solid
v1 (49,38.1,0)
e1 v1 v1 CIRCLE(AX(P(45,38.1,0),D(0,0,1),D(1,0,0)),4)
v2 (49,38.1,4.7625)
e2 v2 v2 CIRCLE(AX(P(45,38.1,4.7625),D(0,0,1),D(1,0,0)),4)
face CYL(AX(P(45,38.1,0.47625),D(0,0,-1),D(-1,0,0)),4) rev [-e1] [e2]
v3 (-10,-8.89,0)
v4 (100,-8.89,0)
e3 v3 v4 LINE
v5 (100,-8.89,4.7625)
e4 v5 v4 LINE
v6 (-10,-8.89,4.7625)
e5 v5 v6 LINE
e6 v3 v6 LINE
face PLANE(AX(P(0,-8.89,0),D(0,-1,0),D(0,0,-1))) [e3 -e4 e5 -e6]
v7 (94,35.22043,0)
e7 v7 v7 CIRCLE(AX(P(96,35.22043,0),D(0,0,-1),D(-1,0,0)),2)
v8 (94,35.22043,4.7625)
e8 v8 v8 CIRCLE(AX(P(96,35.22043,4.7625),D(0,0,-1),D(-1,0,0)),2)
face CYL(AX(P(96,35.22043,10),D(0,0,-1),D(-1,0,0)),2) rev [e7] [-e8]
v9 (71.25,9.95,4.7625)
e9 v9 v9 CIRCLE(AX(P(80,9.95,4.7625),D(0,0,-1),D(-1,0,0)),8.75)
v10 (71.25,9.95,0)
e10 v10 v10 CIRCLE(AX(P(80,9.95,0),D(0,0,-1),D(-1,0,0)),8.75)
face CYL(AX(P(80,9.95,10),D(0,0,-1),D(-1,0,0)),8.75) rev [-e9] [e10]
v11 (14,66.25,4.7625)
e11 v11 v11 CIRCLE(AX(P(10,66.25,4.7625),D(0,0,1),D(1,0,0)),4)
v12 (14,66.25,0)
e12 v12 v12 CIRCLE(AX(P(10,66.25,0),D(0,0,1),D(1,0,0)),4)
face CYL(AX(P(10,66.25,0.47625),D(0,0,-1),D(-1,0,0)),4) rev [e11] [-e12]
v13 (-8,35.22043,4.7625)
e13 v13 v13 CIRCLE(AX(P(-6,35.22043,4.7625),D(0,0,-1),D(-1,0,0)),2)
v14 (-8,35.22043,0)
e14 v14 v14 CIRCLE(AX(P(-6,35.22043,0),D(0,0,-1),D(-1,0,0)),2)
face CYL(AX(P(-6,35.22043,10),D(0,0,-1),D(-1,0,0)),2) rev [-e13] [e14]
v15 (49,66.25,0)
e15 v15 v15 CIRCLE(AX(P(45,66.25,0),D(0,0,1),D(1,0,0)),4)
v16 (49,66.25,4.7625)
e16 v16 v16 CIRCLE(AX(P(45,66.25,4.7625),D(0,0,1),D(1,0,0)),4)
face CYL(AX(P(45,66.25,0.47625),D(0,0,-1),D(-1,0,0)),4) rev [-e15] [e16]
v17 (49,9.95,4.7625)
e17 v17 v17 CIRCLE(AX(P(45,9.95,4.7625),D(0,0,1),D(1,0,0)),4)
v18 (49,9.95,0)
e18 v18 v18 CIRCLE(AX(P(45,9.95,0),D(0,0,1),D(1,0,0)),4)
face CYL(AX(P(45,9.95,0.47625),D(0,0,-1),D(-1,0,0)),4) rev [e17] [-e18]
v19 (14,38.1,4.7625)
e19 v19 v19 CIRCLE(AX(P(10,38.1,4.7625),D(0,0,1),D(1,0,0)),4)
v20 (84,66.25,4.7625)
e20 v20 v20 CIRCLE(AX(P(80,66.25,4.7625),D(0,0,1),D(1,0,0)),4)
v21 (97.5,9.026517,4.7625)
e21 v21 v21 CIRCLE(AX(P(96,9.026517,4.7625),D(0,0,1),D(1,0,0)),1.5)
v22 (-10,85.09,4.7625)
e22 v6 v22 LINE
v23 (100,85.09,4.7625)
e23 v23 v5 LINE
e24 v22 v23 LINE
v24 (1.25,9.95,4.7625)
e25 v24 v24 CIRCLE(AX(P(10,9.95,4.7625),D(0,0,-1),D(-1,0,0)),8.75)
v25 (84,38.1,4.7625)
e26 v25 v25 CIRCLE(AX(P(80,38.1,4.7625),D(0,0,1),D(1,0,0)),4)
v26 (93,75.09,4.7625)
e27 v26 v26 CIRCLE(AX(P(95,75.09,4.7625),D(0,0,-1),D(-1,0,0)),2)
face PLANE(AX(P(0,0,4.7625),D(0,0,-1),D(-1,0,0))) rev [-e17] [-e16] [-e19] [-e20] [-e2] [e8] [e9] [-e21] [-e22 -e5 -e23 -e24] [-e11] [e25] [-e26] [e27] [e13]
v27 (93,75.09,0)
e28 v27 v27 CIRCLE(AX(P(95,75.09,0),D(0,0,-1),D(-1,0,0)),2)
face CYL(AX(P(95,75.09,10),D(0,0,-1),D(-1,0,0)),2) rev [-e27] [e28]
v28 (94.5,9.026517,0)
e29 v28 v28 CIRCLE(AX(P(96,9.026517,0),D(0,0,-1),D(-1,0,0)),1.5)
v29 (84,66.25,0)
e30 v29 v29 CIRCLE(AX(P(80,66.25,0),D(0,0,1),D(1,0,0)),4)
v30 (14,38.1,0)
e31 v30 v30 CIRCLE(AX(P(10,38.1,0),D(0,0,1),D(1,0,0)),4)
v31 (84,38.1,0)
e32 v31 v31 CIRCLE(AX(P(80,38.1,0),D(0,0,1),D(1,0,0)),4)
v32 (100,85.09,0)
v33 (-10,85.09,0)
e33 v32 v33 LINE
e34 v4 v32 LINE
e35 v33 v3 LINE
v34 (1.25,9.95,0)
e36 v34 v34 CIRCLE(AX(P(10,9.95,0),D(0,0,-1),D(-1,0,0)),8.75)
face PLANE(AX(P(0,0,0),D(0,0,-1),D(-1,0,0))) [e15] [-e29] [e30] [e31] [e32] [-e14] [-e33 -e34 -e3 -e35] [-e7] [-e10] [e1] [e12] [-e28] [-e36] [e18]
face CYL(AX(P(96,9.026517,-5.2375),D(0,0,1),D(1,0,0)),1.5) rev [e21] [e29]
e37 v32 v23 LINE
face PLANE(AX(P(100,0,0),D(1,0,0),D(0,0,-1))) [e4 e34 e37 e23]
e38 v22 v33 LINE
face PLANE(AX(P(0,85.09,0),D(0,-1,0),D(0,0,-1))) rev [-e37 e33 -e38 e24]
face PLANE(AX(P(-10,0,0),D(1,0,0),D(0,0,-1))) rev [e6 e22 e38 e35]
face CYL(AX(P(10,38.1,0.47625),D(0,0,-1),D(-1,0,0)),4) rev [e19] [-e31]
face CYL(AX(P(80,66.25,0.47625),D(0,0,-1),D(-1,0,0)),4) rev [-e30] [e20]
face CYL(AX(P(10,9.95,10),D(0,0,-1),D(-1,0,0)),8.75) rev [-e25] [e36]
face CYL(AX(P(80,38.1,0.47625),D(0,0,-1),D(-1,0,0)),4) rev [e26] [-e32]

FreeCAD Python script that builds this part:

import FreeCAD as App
import Part
import Sketcher
Q = App.Units.Quantity


def add_polygon(sketch, points):
    """Adds a closed chain of lines whose ends are joined by coincident constraints."""
    first, n = sketch.GeometryCount, len(points)
    for a, b in zip(points, points[1:] + points[:1]):
        sketch.addGeometry(Part.LineSegment(App.Vector(*a, 0), App.Vector(*b, 0)), False)
    for i in range(n):
        sketch.addConstraint(Sketcher.Constraint("Coincident", first + i, 2, first + (i + 1) % n, 1))

doc = App.newDocument("Part")
body = doc.addObject("PartDesign::Body", "Body")

# Sketch on XY plane
sketch1 = body.newObject("Sketcher::SketchObject", "Sketch")
sketch1.AttachmentSupport = (doc.getObject("XY_Plane"), [""])
sketch1.MapMode = "FlatFace"
add_polygon(sketch1, [(0, 76.2), (0, 0), (90, 0), (90, 76.2)])  # lines 0-3
sketch1.addGeometry(Part.Circle(App.Vector(10, 9.9, 0), App.Vector(0, 0, 1), 4), False)  # 4
sketch1.addGeometry(Part.Circle(App.Vector(45, 9.9, 0), App.Vector(0, 0, 1), 4), False)  # 5
sketch1.addGeometry(Part.Circle(App.Vector(80, 9.9, 0), App.Vector(0, 0, 1), 4), False)  # 6
sketch1.addGeometry(Part.Circle(App.Vector(10, 38.1, 0), App.Vector(0, 0, 1), 4), False)  # 7
sketch1.addGeometry(Part.Circle(App.Vector(10, 66.2, 0), App.Vector(0, 0, 1), 4), False)  # 8
sketch1.addGeometry(Part.Circle(App.Vector(45, 38.1, 0), App.Vector(0, 0, 1), 4), False)  # 9
sketch1.addGeometry(Part.Circle(App.Vector(80, 38.1, 0), App.Vector(0, 0, 1), 4), False)  # 10
sketch1.addGeometry(Part.Circle(App.Vector(45, 66.2, 0), App.Vector(0, 0, 1), 4), False)  # 11
sketch1.addGeometry(Part.Circle(App.Vector(80, 66.2, 0), App.Vector(0, 0, 1), 4), False)  # 12
sketch1.addConstraint(Sketcher.Constraint("Vertical", 0))
sketch1.addConstraint(Sketcher.Constraint("Horizontal", 1))
sketch1.addConstraint(Sketcher.Constraint("Vertical", 2))
sketch1.addConstraint(Sketcher.Constraint("Horizontal", 3))
sketch1.addConstraint(Sketcher.Constraint("Coincident", 0, 2, -1, 1))
sketch1.addConstraint(Sketcher.Constraint("Equal", 4, 5))
sketch1.addConstraint(Sketcher.Constraint("Equal", 5, 6))
sketch1.addConstraint(Sketcher.Constraint("Equal", 6, 7))
sketch1.addConstraint(Sketcher.Constraint("Equal", 7, 8))
sketch1.addConstraint(Sketcher.Constraint("Equal", 8, 9))
sketch1.addConstraint(Sketcher.Constraint("Equal", 9, 10))
sketch1.addConstraint(Sketcher.Constraint("Equal", 10, 11))
sketch1.addConstraint(Sketcher.Constraint("Equal", 11, 12))
sketch1.addConstraint(Sketcher.Constraint("Horizontal", 4, 3, 5, 3))
sketch1.addConstraint(Sketcher.Constraint("Horizontal", 5, 3, 6, 3))
sketch1.addConstraint(Sketcher.Constraint("Horizontal", 7, 3, 9, 3))
sketch1.addConstraint(Sketcher.Constraint("Horizontal", 9, 3, 10, 3))
sketch1.addConstraint(Sketcher.Constraint("Horizontal", 8, 3, 11, 3))
sketch1.addConstraint(Sketcher.Constraint("Horizontal", 11, 3, 12, 3))
sketch1.addConstraint(Sketcher.Constraint("Vertical", 4, 3, 7, 3))
sketch1.addConstraint(Sketcher.Constraint("Vertical", 7, 3, 8, 3))
sketch1.addConstraint(Sketcher.Constraint("Vertical", 5, 3, 9, 3))
sketch1.addConstraint(Sketcher.Constraint("Vertical", 6, 3, 10, 3))
sketch1.addConstraint(Sketcher.Constraint("Vertical", 9, 3, 11, 3))
sketch1.addConstraint(Sketcher.Constraint("Vertical", 10, 3, 12, 3))
sketch1.addConstraint(Sketcher.Constraint("Diameter", 4, Q("8 mm")))
sketch1.addConstraint(Sketcher.Constraint("DistanceX", 1, 1, 1, 2, Q("90 mm")))
sketch1.addConstraint(Sketcher.Constraint("DistanceY", 0, 2, 0, 1, Q("76.2 mm")))
sketch1.addConstraint(Sketcher.Constraint("DistanceX", -1, 1, 4, 3, Q("10 mm")))
sketch1.addConstraint(Sketcher.Constraint("DistanceX", -1, 1, 5, 3, Q("45 mm")))
sketch1.addConstraint(Sketcher.Constraint("DistanceX", -1, 1, 6, 3, Q("80 mm")))
sketch1.addConstraint(Sketcher.Constraint("DistanceY", -1, 1, 7, 3, Q("38.1 mm")))
sketch1.addConstraint(Sketcher.Constraint("DistanceY", 4, 3, 8, 3, Q("56.3 mm")))
sketch1.addConstraint(Sketcher.Constraint("DistanceY", -1, 1, 4, 3, Q("9.95 mm")))
pad1 = body.newObject("PartDesign::Pad", "Pad")
pad1.Profile = sketch1
pad1.Length = 0.47625

# Sketch on XY plane
sketch2 = body.newObject("Sketcher::SketchObject", "Sketch001")
sketch2.AttachmentSupport = (doc.getObject("XY_Plane"), [""])
sketch2.MapMode = "FlatFace"
add_polygon(sketch2, [(0, 76.2), (0, 0), (90, 0), (90, 76.2)])  # lines 0-3
sketch2.addGeometry(Part.Circle(App.Vector(10, 9.9, 0), App.Vector(0, 0, 1), 4), False)  # 4
sketch2.addGeometry(Part.Circle(App.Vector(45, 9.9, 0), App.Vector(0, 0, 1), 4), False)  # 5
sketch2.addGeometry(Part.Circle(App.Vector(80, 9.9, 0), App.Vector(0, 0, 1), 4), False)  # 6
sketch2.addGeometry(Part.Circle(App.Vector(10, 38.1, 0), App.Vector(0, 0, 1), 4), False)  # 7
sketch2.addGeometry(Part.Circle(App.Vector(10, 66.2, 0), App.Vector(0, 0, 1), 4), False)  # 8
sketch2.addGeometry(Part.Circle(App.Vector(45, 38.1, 0), App.Vector(0, 0, 1), 4), False)  # 9
sketch2.addGeometry(Part.Circle(App.Vector(80, 38.1, 0), App.Vector(0, 0, 1), 4), False)  # 10
sketch2.addGeometry(Part.Circle(App.Vector(45, 66.2, 0), App.Vector(0, 0, 1), 4), False)  # 11
sketch2.addGeometry(Part.Circle(App.Vector(80, 66.2, 0), App.Vector(0, 0, 1), 4), False)  # 12
sketch2.addConstraint(Sketcher.Constraint("Vertical", 0))
sketch2.addConstraint(Sketcher.Constraint("Horizontal", 1))
sketch2.addConstraint(Sketcher.Constraint("Vertical", 2))
sketch2.addConstraint(Sketcher.Constraint("Horizontal", 3))
sketch2.addConstraint(Sketcher.Constraint("Coincident", 0, 2, -1, 1))
sketch2.addConstraint(Sketcher.Constraint("Equal", 4, 5))
sketch2.addConstraint(Sketcher.Constraint("Equal", 5, 6))
sketch2.addConstraint(Sketcher.Constraint("Equal", 6, 7))
sketch2.addConstraint(Sketcher.Constraint("Equal", 7, 8))
sketch2.addConstraint(Sketcher.Constraint("Equal", 8, 9))
sketch2.addConstraint(Sketcher.Constraint("Equal", 9, 10))
sketch2.addConstraint(Sketcher.Constraint("Equal", 10, 11))
sketch2.addConstraint(Sketcher.Constraint("Equal", 11, 12))
sketch2.addConstraint(Sketcher.Constraint("Horizontal", 4, 3, 5, 3))
sketch2.addConstraint(Sketcher.Constraint("Horizontal", 5, 3, 6, 3))
sketch2.addConstraint(Sketcher.Constraint("Horizontal", 7, 3, 9, 3))
sketch2.addConstraint(Sketcher.Constraint("Horizontal", 9, 3, 10, 3))
sketch2.addConstraint(Sketcher.Constraint("Horizontal", 8, 3, 11, 3))
sketch2.addConstraint(Sketcher.Constraint("Horizontal", 11, 3, 12, 3))
sketch2.addConstraint(Sketcher.Constraint("Vertical", 4, 3, 7, 3))
sketch2.addConstraint(Sketcher.Constraint("Vertical", 7, 3, 8, 3))
sketch2.addConstraint(Sketcher.Constraint("Vertical", 5, 3, 9, 3))
sketch2.addConstraint(Sketcher.Constraint("Vertical", 6, 3, 10, 3))
sketch2.addConstraint(Sketcher.Constraint("Vertical", 9, 3, 11, 3))
sketch2.addConstraint(Sketcher.Constraint("Vertical", 10, 3, 12, 3))
sketch2.addConstraint(Sketcher.Constraint("Diameter", 4, Q("8 mm")))
sketch2.addConstraint(Sketcher.Constraint("DistanceX", 1, 1, 1, 2, Q("90 mm")))
sketch2.addConstraint(Sketcher.Constraint("DistanceY", 0, 2, 0, 1, Q("76.2 mm")))
sketch2.addConstraint(Sketcher.Constraint("DistanceX", -1, 1, 4, 3, Q("10 mm")))
sketch2.addConstraint(Sketcher.Constraint("DistanceX", -1, 1, 5, 3, Q("45 mm")))
sketch2.addConstraint(Sketcher.Constraint("DistanceX", -1, 1, 6, 3, Q("80 mm")))
sketch2.addConstraint(Sketcher.Constraint("DistanceY", -1, 1, 7, 3, Q("38.1 mm")))
sketch2.addConstraint(Sketcher.Constraint("DistanceY", 4, 3, 8, 3, Q("56.3 mm")))
sketch2.addConstraint(Sketcher.Constraint("DistanceY", -1, 1, 4, 3, Q("9.95 mm")))
pad2 = body.newObject("PartDesign::Pad", "Pad001")
pad2.Profile = sketch2
pad2.Length = 4.7625

# Sketch on XZ plane
sketch3 = body.newObject("Sketcher::SketchObject", "Sketch002")
sketch3.AttachmentSupport = (doc.getObject("XZ_Plane"), [""])
sketch3.MapMode = "FlatFace"
add_polygon(sketch3, [(0, 4.8), (0, 0), (90, 0), (90, 4.8)])  # lines 0-3
sketch3.addConstraint(Sketcher.Constraint("Vertical", 0))
sketch3.addConstraint(Sketcher.Constraint("Horizontal", 1))
sketch3.addConstraint(Sketcher.Constraint("Vertical", 2))
sketch3.addConstraint(Sketcher.Constraint("Horizontal", 3))
sketch3.addConstraint(Sketcher.Constraint("Coincident", 0, 2, -1, 1))
sketch3.addConstraint(Sketcher.Constraint("DistanceX", 1, 1, 1, 2, Q("90 mm")))
sketch3.addConstraint(Sketcher.Constraint("DistanceY", 0, 2, 0, 1, Q("4.7625 mm")))
pad3 = body.newObject("PartDesign::Pad", "Pad002")
pad3.Profile = sketch3
pad3.Length = 4.445

# Sketch on XZ plane
sketch4 = body.newObject("Sketcher::SketchObject", "Sketch003")
sketch4.AttachmentSupport = (doc.getObject("XZ_Plane"), [""])
sketch4.MapMode = "FlatFace"
sketch4.AttachmentOffset = App.Placement(App.Vector(0, 0, -76.2), App.Rotation())
add_polygon(sketch4, [(0, 0), (0, 4.8), (90, 4.8), (90, 0)])  # lines 0-3
sketch4.addConstraint(Sketcher.Constraint("Vertical", 0))
sketch4.addConstraint(Sketcher.Constraint("Horizontal", 1))
sketch4.addConstraint(Sketcher.Constraint("Vertical", 2))
sketch4.addConstraint(Sketcher.Constraint("Horizontal", 3))
sketch4.addConstraint(Sketcher.Constraint("Coincident", 3, 2, -1, 1))
sketch4.addConstraint(Sketcher.Constraint("DistanceX", 1, 1, 1, 2, Q("90 mm")))
sketch4.addConstraint(Sketcher.Constraint("DistanceY", 0, 1, 0, 2, Q("4.7625 mm")))
pad4 = body.newObject("PartDesign::Pad", "Pad003")
pad4.Profile = sketch4
pad4.Length = 4.445
pad4.Reversed = True

# Sketch on YZ plane
sketch5 = body.newObject("Sketcher::SketchObject", "Sketch004")
sketch5.AttachmentSupport = (doc.getObject("YZ_Plane"), [""])
sketch5.MapMode = "FlatFace"
add_polygon(sketch5, [(80.6, 0), (-4.4, 0), (-4.4, 4.8), (80.6, 4.8)])  # lines 0-3
sketch5.addConstraint(Sketcher.Constraint("Horizontal", 0))
sketch5.addConstraint(Sketcher.Constraint("Vertical", 1))
sketch5.addConstraint(Sketcher.Constraint("Horizontal", 2))
sketch5.addConstraint(Sketcher.Constraint("Vertical", 3))
sketch5.addConstraint(Sketcher.Constraint("PointOnObject", 0, 2, -1))
sketch5.addConstraint(Sketcher.Constraint("DistanceX", 0, 2, 0, 1, Q("85.09 mm")))
sketch5.addConstraint(Sketcher.Constraint("DistanceY", 1, 1, 1, 2, Q("4.7625 mm")))
sketch5.addConstraint(Sketcher.Constraint("DistanceX", 0, 2, -1, 1, Q("4.445 mm")))
pad5 = body.newObject("PartDesign::Pad", "Pad004")
pad5.Profile = sketch5
pad5.Length = 5
pad5.Reversed = True

# Sketch on YZ plane
sketch6 = body.newObject("Sketcher::SketchObject", "Sketch005")
sketch6.AttachmentSupport = (doc.getObject("YZ_Plane"), [""])
sketch6.MapMode = "FlatFace"
sketch6.AttachmentOffset = App.Placement(App.Vector(0, 0, 90), App.Rotation())
add_polygon(sketch6, [(80.6, 4.8), (-4.4, 4.8), (-4.4, 0), (80.6, 0)])  # lines 0-3
sketch6.addConstraint(Sketcher.Constraint("Horizontal", 0))
sketch6.addConstraint(Sketcher.Constraint("Vertical", 1))
sketch6.addConstraint(Sketcher.Constraint("Horizontal", 2))
sketch6.addConstraint(Sketcher.Constraint("Vertical", 3))
sketch6.addConstraint(Sketcher.Constraint("PointOnObject", 1, 2, -1))
sketch6.addConstraint(Sketcher.Constraint("DistanceX", 0, 2, 0, 1, Q("85.09 mm")))
sketch6.addConstraint(Sketcher.Constraint("DistanceY", 1, 2, 1, 1, Q("4.7625 mm")))
sketch6.addConstraint(Sketcher.Constraint("DistanceX", 0, 2, -1, 1, Q("4.445 mm")))
pad6 = body.newObject("PartDesign::Pad", "Pad005")
pad6.Profile = sketch6
pad6.Length = 5

# Sketch on XZ plane
sketch7 = body.newObject("Sketcher::SketchObject", "Sketch006")
sketch7.AttachmentSupport = (doc.getObject("XZ_Plane"), [""])
sketch7.MapMode = "FlatFace"
sketch7.AttachmentOffset = App.Placement(App.Vector(0, 0, 4.445), App.Rotation())
add_polygon(sketch7, [(-5, 4.8), (-5, 0), (95, 0), (95, 4.8)])  # lines 0-3
sketch7.addConstraint(Sketcher.Constraint("Vertical", 0))
sketch7.addConstraint(Sketcher.Constraint("Horizontal", 1))
sketch7.addConstraint(Sketcher.Constraint("Vertical", 2))
sketch7.addConstraint(Sketcher.Constraint("Horizontal", 3))
sketch7.addConstraint(Sketcher.Constraint("PointOnObject", 0, 2, -1))
sketch7.addConstraint(Sketcher.Constraint("DistanceX", 1, 1, 1, 2, Q("100 mm")))
sketch7.addConstraint(Sketcher.Constraint("DistanceX", 0, 2, -1, 1, Q("5 mm")))
sketch7.addConstraint(Sketcher.Constraint("DistanceY", 0, 2, 0, 1, Q("4.7625 mm")))
pad7 = body.newObject("PartDesign::Pad", "Pad006")
pad7.Profile = sketch7
pad7.Length = 4.445

# Sketch on XZ plane
sketch8 = body.newObject("Sketcher::SketchObject", "Sketch007")
sketch8.AttachmentSupport = (doc.getObject("XZ_Plane"), [""])
sketch8.MapMode = "FlatFace"
sketch8.AttachmentOffset = App.Placement(App.Vector(0, 0, -80.645), App.Rotation())
add_polygon(sketch8, [(-5, 0), (-5, 4.8), (95, 4.8), (95, 0)])  # lines 0-3
sketch8.addConstraint(Sketcher.Constraint("Vertical", 0))
sketch8.addConstraint(Sketcher.Constraint("Horizontal", 1))
sketch8.addConstraint(Sketcher.Constraint("Vertical", 2))
sketch8.addConstraint(Sketcher.Constraint("Horizontal", 3))
sketch8.addConstraint(Sketcher.Constraint("PointOnObject", 2, 2, -1))
sketch8.addConstraint(Sketcher.Constraint("DistanceX", 1, 1, 1, 2, Q("100 mm")))
sketch8.addConstraint(Sketcher.Constraint("DistanceX", 0, 2, -1, 1, Q("5 mm")))
sketch8.addConstraint(Sketcher.Constraint("DistanceY", 0, 1, 0, 2, Q("4.7625 mm")))
pad8 = body.newObject("PartDesign::Pad", "Pad007")
pad8.Profile = sketch8
pad8.Length = 4.445
pad8.Reversed = True

# Sketch on YZ plane
sketch9 = body.newObject("Sketcher::SketchObject", "Sketch008")
sketch9.AttachmentSupport = (doc.getObject("YZ_Plane"), [""])
sketch9.MapMode = "FlatFace"
sketch9.AttachmentOffset = App.Placement(App.Vector(0, 0, 95), App.Rotation())
add_polygon(sketch9, [(85.1, 4.8), (-8.9, 4.8), (-8.9, 0), (85.1, 0)])  # lines 0-3
sketch9.addConstraint(Sketcher.Constraint("Horizontal", 0))
sketch9.addConstraint(Sketcher.Constraint("Vertical", 1))
sketch9.addConstraint(Sketcher.Constraint("Horizontal", 2))
sketch9.addConstraint(Sketcher.Constraint("Vertical", 3))
sketch9.addConstraint(Sketcher.Constraint("PointOnObject", 1, 2, -1))
sketch9.addConstraint(Sketcher.Constraint("DistanceX", 0, 2, 0, 1, Q("93.98 mm")))
sketch9.addConstraint(Sketcher.Constraint("DistanceX", 0, 2, -1, 1, Q("8.89 mm")))
sketch9.addConstraint(Sketcher.Constraint("DistanceY", 1, 2, 1, 1, Q("4.7625 mm")))
pad9 = body.newObject("PartDesign::Pad", "Pad008")
pad9.Profile = sketch9
pad9.Length = 5

# Sketch on YZ plane
sketch10 = body.newObject("Sketcher::SketchObject", "Sketch009")
sketch10.AttachmentSupport = (doc.getObject("YZ_Plane"), [""])
sketch10.MapMode = "FlatFace"
sketch10.AttachmentOffset = App.Placement(App.Vector(0, 0, -5), App.Rotation())
add_polygon(sketch10, [(85.1, 0), (-8.9, 0), (-8.9, 4.8), (85.1, 4.8)])  # lines 0-3
sketch10.addConstraint(Sketcher.Constraint("Horizontal", 0))
sketch10.addConstraint(Sketcher.Constraint("Vertical", 1))
sketch10.addConstraint(Sketcher.Constraint("Horizontal", 2))
sketch10.addConstraint(Sketcher.Constraint("Vertical", 3))
sketch10.addConstraint(Sketcher.Constraint("PointOnObject", 0, 2, -1))
sketch10.addConstraint(Sketcher.Constraint("DistanceX", 0, 2, 0, 1, Q("93.98 mm")))
sketch10.addConstraint(Sketcher.Constraint("DistanceX", 0, 2, -1, 1, Q("8.89 mm")))
sketch10.addConstraint(Sketcher.Constraint("DistanceY", 1, 1, 1, 2, Q("4.7625 mm")))
pad10 = body.newObject("PartDesign::Pad", "Pad009")
pad10.Profile = sketch10
pad10.Length = 5
pad10.Reversed = True

# Sketch on XY plane
sketch11 = body.newObject("Sketcher::SketchObject", "Sketch010")
sketch11.AttachmentSupport = (doc.getObject("XY_Plane"), [""])
sketch11.MapMode = "FlatFace"
sketch11.addGeometry(Part.Circle(App.Vector(80, 10, 0), App.Vector(0, 0, 1), 9), False)
sketch11.addGeometry(Part.Circle(App.Vector(10, 10, 0), App.Vector(0, 0, 1), 9), False)
sketch11.addConstraint(Sketcher.Constraint("Equal", 0, 1))
sketch11.addConstraint(Sketcher.Constraint("Horizontal", 0, 3, 1, 3))
sketch11.addConstraint(Sketcher.Constraint("Diameter", 0, Q("17.5 mm")))
sketch11.addConstraint(Sketcher.Constraint("DistanceX", -1, 1, 0, 3, Q("80 mm")))
sketch11.addConstraint(Sketcher.Constraint("DistanceX", -1, 1, 1, 3, Q("10 mm")))
sketch11.addConstraint(Sketcher.Constraint("DistanceY", -1, 1, 0, 3, Q("9.95 mm")))
pocket1 = body.newObject("PartDesign::Pocket", "Pocket")
pocket1.Profile = sketch11
pocket1.Length = 10
pocket1.Reversed = True

# Sketch on XY plane
sketch12 = body.newObject("Sketcher::SketchObject", "Sketch011")
sketch12.AttachmentSupport = (doc.getObject("XY_Plane"), [""])
sketch12.MapMode = "FlatFace"
sketch12.addGeometry(Part.Circle(App.Vector(95, 75.1, 0), App.Vector(0, 0, 1), 2), False)
sketch12.addConstraint(Sketcher.Constraint("Diameter", 0, Q("4 mm")))
sketch12.addConstraint(Sketcher.Constraint("DistanceX", -1, 1, 0, 3, Q("95 mm")))
sketch12.addConstraint(Sketcher.Constraint("DistanceY", -1, 1, 0, 3, Q("75.09 mm")))
pocket2 = body.newObject("PartDesign::Pocket", "Pocket001")
pocket2.Profile = sketch12
pocket2.Length = 10
pocket2.Reversed = True

# Sketch on XY plane
sketch13 = body.newObject("Sketcher::SketchObject", "Sketch012")
sketch13.AttachmentSupport = (doc.getObject("XY_Plane"), [""])
sketch13.MapMode = "FlatFace"
sketch13.AttachmentOffset = App.Placement(App.Vector(0, 0, 4.7625), App.Rotation())
sketch13.addGeometry(Part.Circle(App.Vector(96, 9, 0), App.Vector(0, 0, 1), 1.5), False)
sketch13.addConstraint(Sketcher.Constraint("Diameter", 0, Q("3 mm")))
sketch13.addConstraint(Sketcher.Constraint("DistanceX", -1, 1, 0, 3, Q("96 mm")))
sketch13.addConstraint(Sketcher.Constraint("DistanceY", -1, 1, 0, 3, Q("9.026517 mm")))
pocket3 = body.newObject("PartDesign::Pocket", "Pocket002")
pocket3.Profile = sketch13
pocket3.Length = 10

# Sketch on XY plane
sketch14 = body.newObject("Sketcher::SketchObject", "Sketch013")
sketch14.AttachmentSupport = (doc.getObject("XY_Plane"), [""])
sketch14.MapMode = "FlatFace"
sketch14.addGeometry(Part.Circle(App.Vector(-6, 35.2, 0), App.Vector(0, 0, 1), 2), False)
sketch14.addGeometry(Part.Circle(App.Vector(96, 35.2, 0), App.Vector(0, 0, 1), 2), False)
sketch14.addConstraint(Sketcher.Constraint("Equal", 0, 1))
sketch14.addConstraint(Sketcher.Constraint("Horizontal", 0, 3, 1, 3))
sketch14.addConstraint(Sketcher.Constraint("Diameter", 0, Q("4 mm")))
sketch14.addConstraint(Sketcher.Constraint("DistanceX", 0, 3, -1, 1, Q("6 mm")))
sketch14.addConstraint(Sketcher.Constraint("DistanceX", -1, 1, 1, 3, Q("96 mm")))
sketch14.addConstraint(Sketcher.Constraint("DistanceY", -1, 1, 0, 3, Q("35.22043 mm")))
pocket4 = body.newObject("PartDesign::Pocket", "Pocket003")
pocket4.Profile = sketch14
pocket4.Length = 10
pocket4.Reversed = True

doc.recompute()
